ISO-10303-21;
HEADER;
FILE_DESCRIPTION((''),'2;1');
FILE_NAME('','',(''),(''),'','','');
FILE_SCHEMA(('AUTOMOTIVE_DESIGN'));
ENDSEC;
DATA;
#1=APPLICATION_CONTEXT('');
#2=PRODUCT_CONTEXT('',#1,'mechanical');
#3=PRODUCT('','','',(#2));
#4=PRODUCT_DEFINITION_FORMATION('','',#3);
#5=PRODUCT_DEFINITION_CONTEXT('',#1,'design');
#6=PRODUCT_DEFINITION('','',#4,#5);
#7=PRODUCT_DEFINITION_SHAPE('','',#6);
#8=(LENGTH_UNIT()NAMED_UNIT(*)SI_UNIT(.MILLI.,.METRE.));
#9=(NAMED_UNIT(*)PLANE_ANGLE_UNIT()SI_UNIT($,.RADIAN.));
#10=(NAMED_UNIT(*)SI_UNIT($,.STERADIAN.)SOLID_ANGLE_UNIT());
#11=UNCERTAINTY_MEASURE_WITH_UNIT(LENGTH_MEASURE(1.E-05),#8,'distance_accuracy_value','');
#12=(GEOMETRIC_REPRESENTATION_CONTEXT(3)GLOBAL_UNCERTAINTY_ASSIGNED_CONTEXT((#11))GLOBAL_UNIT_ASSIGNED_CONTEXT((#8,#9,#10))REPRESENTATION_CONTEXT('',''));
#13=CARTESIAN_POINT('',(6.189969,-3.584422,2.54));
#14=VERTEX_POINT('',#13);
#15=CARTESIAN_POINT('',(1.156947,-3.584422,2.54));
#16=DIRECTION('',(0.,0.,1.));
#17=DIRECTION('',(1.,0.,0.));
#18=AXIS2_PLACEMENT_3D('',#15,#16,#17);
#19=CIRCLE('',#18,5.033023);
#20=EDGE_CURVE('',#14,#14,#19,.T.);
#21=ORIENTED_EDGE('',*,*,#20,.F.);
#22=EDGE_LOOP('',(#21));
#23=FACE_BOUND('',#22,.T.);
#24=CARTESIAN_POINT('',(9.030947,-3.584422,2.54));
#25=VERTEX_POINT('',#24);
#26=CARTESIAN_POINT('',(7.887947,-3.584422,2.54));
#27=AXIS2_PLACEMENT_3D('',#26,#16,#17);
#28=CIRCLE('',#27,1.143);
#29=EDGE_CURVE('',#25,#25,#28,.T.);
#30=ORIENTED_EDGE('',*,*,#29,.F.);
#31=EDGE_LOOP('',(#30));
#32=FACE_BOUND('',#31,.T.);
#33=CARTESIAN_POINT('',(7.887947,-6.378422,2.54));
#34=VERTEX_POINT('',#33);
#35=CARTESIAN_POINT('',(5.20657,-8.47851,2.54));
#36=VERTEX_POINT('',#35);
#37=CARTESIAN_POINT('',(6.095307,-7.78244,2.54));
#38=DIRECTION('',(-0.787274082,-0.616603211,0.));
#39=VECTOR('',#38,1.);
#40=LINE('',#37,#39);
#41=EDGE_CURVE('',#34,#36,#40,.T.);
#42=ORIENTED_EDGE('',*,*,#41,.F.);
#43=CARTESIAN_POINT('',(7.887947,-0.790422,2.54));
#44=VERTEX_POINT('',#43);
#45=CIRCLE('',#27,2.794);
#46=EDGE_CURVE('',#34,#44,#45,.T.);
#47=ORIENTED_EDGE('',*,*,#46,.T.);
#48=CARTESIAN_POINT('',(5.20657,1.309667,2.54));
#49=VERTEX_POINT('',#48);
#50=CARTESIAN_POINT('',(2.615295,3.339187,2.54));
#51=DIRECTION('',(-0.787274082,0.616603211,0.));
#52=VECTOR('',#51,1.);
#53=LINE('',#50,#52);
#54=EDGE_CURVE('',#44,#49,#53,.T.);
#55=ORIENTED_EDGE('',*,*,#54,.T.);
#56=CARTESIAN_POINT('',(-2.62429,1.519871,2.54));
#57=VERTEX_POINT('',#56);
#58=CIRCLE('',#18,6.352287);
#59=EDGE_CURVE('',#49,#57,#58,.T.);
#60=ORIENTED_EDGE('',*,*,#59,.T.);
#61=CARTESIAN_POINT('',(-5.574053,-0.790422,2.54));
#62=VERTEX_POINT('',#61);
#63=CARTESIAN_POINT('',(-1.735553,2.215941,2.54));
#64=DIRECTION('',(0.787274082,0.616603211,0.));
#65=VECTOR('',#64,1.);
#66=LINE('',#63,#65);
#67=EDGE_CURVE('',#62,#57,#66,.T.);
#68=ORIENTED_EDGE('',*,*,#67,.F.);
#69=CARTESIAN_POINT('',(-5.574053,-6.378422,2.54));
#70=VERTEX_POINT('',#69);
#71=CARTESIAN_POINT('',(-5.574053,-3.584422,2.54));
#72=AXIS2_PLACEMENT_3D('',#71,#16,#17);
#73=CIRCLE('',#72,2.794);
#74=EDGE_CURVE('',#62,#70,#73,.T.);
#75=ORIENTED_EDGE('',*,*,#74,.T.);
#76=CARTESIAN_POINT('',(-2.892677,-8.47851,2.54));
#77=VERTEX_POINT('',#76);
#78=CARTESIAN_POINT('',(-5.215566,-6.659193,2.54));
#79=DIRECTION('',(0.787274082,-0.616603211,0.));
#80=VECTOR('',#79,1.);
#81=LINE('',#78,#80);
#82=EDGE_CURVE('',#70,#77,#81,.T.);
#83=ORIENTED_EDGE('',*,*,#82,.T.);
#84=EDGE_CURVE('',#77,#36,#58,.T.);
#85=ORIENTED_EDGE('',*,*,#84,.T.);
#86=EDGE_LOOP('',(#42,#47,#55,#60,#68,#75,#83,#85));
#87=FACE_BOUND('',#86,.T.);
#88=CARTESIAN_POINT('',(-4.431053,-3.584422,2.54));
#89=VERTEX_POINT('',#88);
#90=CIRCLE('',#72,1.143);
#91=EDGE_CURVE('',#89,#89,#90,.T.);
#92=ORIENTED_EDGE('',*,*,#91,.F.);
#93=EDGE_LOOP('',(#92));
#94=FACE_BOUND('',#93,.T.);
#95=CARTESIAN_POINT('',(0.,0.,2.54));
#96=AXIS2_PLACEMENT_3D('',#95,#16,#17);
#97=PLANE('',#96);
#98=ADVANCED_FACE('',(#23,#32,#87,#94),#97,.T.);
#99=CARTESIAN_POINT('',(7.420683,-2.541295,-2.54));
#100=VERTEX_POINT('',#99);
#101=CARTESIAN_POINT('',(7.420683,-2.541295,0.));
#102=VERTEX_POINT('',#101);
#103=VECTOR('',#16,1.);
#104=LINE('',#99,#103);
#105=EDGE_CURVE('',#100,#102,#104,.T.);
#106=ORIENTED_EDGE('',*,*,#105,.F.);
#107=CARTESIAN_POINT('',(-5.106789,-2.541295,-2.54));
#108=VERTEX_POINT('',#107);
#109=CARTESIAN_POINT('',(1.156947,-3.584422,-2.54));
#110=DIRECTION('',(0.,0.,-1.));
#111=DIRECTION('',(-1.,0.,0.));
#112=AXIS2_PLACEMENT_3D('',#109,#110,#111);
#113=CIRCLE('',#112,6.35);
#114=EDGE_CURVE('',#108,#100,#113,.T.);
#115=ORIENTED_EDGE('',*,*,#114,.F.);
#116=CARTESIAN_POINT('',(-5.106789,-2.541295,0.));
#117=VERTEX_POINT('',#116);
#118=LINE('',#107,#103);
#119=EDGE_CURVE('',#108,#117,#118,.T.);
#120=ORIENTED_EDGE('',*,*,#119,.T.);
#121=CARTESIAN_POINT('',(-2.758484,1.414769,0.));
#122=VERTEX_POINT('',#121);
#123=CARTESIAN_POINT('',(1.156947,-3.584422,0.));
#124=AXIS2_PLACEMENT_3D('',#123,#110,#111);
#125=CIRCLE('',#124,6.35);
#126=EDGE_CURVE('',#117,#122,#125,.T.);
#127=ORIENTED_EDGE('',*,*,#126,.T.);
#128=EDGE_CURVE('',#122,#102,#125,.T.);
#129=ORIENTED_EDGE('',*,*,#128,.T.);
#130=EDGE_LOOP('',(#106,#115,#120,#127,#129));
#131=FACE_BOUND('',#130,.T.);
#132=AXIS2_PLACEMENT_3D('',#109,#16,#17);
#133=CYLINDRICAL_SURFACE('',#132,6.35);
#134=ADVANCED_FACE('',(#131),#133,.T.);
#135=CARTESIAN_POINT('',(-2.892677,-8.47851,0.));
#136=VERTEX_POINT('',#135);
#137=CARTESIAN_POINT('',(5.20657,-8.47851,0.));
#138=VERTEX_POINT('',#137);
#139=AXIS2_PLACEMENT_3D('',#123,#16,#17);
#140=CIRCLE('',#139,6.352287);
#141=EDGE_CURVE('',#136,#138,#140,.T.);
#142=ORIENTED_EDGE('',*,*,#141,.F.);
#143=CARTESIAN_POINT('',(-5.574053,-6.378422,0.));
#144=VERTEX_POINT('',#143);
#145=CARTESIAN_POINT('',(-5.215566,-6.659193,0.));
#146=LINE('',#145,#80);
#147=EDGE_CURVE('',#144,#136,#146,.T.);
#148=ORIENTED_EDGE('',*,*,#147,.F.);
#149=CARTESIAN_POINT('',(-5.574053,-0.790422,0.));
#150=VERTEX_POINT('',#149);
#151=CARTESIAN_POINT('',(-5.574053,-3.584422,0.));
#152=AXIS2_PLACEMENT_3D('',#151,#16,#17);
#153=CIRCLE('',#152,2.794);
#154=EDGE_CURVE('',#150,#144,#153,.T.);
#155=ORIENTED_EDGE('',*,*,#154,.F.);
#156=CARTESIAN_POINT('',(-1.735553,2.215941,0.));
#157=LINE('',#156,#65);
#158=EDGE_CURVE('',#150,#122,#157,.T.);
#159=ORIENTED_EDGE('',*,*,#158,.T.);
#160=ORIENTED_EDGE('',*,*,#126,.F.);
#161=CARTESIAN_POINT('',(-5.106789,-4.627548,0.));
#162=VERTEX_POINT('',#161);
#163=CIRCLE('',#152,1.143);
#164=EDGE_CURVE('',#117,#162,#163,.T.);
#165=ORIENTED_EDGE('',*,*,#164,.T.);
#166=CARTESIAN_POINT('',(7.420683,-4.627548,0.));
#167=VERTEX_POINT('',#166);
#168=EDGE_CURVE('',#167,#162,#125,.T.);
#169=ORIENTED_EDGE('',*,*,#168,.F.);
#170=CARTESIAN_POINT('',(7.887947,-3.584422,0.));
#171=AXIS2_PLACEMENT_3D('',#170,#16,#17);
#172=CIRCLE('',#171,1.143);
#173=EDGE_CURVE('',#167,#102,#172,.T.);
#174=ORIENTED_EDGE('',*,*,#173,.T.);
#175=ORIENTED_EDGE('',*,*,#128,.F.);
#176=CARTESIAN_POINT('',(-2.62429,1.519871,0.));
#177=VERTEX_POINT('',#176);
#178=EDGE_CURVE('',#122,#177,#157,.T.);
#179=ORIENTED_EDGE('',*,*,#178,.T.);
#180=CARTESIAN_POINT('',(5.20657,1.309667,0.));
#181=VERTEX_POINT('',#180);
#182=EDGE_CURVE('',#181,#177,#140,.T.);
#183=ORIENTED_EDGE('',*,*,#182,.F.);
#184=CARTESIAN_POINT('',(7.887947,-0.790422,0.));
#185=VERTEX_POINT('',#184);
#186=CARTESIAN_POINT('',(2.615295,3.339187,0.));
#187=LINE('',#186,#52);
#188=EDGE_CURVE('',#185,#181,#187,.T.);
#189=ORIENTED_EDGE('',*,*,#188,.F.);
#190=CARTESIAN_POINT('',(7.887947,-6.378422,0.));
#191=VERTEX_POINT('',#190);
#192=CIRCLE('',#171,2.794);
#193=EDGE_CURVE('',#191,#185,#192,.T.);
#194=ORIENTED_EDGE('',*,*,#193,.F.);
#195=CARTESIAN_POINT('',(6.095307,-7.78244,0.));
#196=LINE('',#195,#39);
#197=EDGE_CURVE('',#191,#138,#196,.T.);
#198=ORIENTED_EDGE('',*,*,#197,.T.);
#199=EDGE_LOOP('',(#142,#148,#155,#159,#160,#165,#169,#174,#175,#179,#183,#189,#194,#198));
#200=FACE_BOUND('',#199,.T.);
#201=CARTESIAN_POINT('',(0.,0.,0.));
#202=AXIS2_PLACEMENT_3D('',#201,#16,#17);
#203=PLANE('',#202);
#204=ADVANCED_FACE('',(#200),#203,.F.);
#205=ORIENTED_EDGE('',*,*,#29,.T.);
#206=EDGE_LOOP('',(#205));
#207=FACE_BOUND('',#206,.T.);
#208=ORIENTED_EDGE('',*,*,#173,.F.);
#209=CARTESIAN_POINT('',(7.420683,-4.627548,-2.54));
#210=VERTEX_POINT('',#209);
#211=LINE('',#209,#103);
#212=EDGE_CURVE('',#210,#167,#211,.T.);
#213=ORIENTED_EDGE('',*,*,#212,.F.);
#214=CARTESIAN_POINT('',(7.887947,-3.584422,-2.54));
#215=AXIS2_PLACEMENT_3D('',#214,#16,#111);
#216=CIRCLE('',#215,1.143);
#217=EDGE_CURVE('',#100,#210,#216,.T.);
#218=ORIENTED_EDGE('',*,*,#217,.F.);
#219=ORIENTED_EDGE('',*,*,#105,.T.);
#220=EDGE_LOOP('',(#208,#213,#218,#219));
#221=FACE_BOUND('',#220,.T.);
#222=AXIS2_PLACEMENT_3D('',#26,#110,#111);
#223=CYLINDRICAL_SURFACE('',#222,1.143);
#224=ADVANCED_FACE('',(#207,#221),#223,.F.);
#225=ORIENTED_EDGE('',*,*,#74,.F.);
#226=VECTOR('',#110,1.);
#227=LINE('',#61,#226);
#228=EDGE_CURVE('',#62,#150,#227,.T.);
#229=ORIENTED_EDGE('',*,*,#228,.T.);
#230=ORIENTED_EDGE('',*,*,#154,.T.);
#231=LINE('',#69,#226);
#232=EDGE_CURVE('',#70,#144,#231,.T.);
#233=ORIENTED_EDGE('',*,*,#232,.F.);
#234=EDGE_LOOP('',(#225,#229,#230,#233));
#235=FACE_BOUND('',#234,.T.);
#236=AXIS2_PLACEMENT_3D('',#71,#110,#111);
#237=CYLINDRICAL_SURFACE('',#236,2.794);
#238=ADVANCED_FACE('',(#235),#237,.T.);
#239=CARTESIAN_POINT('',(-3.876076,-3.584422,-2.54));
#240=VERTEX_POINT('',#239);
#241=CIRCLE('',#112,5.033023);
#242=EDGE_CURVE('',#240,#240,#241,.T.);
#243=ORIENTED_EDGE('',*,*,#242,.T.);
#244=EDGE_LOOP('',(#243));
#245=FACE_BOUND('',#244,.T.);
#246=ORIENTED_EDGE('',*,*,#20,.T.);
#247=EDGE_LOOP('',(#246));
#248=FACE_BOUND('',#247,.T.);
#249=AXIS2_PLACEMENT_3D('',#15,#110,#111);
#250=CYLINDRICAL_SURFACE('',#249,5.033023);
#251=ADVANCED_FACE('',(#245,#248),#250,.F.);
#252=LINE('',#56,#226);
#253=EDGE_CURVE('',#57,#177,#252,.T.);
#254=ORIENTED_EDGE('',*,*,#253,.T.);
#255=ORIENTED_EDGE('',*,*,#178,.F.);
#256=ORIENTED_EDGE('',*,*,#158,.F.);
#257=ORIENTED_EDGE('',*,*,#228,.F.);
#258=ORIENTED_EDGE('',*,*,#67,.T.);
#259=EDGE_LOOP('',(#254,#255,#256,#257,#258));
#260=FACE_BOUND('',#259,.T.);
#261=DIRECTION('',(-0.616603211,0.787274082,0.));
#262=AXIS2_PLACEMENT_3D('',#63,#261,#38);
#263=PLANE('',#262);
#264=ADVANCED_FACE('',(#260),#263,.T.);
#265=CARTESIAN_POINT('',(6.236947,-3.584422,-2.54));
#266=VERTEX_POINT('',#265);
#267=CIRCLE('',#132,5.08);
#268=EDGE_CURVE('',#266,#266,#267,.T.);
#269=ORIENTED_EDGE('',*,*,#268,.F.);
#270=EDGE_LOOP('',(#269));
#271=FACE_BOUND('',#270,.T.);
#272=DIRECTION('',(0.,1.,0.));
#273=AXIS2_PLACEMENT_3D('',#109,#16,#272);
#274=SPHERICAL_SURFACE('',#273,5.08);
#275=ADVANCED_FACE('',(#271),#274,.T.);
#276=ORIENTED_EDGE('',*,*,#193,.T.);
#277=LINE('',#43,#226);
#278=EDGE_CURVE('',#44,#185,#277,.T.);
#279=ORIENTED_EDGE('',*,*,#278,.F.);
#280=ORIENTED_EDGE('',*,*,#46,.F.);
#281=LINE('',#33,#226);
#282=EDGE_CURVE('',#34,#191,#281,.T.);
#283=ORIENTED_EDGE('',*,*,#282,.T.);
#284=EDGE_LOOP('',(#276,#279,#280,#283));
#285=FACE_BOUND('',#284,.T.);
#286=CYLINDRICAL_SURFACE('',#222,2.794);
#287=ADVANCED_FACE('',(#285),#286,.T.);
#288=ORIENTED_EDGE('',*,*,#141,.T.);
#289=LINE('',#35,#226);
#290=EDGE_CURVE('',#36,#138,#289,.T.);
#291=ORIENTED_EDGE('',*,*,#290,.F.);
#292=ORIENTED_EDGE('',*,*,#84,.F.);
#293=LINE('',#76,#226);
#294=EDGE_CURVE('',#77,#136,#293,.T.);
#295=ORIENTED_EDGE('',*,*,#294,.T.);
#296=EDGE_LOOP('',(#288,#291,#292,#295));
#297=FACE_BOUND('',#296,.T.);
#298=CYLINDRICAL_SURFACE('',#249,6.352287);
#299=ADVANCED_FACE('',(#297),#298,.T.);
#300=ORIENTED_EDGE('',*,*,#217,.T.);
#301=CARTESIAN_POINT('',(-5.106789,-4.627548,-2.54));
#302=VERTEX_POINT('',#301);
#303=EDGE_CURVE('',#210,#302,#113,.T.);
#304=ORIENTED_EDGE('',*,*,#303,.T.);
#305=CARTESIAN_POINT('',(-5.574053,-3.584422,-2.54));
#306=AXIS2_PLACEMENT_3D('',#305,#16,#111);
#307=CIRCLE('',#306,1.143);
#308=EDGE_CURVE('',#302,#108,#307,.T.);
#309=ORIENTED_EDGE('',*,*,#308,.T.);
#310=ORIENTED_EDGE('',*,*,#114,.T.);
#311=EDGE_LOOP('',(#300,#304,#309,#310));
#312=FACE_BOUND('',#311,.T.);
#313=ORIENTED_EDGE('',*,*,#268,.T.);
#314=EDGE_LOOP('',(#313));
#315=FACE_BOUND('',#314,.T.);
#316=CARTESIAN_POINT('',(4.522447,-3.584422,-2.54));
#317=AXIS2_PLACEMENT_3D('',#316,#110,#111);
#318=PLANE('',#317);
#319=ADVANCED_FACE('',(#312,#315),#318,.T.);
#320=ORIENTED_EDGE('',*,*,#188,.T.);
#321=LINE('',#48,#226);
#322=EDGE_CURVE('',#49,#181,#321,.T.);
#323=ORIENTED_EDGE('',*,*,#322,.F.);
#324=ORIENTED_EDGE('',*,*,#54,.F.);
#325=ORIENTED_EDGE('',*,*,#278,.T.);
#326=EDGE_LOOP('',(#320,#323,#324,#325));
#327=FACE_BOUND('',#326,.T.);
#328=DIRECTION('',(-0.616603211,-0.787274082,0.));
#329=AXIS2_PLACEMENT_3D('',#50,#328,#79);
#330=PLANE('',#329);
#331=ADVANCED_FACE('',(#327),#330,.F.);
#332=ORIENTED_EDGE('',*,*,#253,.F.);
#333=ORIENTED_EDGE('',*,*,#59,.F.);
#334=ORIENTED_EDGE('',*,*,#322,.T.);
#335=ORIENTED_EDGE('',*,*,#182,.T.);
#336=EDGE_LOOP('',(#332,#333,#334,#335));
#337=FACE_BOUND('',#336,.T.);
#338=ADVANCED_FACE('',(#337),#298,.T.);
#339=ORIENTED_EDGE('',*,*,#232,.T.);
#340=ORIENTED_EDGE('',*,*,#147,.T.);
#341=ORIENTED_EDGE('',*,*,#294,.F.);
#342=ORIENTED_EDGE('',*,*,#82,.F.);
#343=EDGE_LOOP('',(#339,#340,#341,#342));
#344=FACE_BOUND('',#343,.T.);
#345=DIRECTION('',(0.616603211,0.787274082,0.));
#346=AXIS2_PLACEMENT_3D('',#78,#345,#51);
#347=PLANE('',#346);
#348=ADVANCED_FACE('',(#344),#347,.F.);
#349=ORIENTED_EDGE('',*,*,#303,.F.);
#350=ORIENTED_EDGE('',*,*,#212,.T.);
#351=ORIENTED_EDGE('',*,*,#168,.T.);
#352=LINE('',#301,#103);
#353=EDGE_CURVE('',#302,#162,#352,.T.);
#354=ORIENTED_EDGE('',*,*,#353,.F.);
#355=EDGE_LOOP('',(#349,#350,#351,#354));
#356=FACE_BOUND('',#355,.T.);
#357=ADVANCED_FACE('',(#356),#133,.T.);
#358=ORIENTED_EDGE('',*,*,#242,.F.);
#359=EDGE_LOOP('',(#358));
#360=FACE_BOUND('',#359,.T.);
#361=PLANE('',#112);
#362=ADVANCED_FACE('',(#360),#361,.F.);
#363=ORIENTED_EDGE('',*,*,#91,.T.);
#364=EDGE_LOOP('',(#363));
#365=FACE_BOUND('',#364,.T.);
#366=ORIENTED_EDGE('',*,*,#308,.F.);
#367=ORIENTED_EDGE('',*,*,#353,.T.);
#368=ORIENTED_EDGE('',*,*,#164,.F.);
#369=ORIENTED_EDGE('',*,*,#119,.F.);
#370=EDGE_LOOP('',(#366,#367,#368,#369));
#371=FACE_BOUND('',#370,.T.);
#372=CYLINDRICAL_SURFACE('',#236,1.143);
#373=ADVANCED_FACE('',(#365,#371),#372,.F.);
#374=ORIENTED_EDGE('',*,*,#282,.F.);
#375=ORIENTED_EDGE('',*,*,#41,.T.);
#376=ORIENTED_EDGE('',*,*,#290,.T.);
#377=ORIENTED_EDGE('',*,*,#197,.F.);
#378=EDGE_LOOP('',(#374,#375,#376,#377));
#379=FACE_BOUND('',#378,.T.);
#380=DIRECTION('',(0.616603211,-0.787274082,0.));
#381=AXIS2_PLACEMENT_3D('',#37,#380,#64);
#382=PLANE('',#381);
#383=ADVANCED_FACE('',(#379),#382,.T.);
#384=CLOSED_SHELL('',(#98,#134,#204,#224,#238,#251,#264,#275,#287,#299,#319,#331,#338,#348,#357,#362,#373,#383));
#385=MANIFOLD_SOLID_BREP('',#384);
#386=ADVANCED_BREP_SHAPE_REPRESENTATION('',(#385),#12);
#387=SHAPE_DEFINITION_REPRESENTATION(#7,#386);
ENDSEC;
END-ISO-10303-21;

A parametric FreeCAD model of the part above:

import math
import FreeCAD as App
import Part
import Sketcher
from FreeCAD import Vector
Q = App.Units.Quantity

doc = App.newDocument("Part")
params = doc.addObject("Spreadsheet::Sheet", "Params")
for row, (alias, value) in enumerate([
    ("sketch1_diameter", "0.09 in"),
    ("sketch1_radius", "0.11 in"),
    ("pad1_length", "0.1 in"),
    ("sketch2_radius", "0.25 in"),
    ("sketch2_radius2", "0.045 in"),
    ("pad2_length", "0.1 in"),
    ("sketch3_radius", "0.2 in"),
    ("revolution_angle", "360 deg"),
], start=1):
    params.set(f"A{row}", alias)
    params.set(f"B{row}", "=" + value)
    params.setAlias(f"B{row}", alias)

body = doc.addObject("PartDesign::Body", "Body")

# Sketch on XY plane
sketch1 = body.newObject("Sketcher::SketchObject", "Sketch")
sketch1.AttachmentSupport = (doc.getObject("XY_Plane"), [""])
sketch1.MapMode = "FlatFace"
sketch1.addGeometry([
    Part.LineSegment(Vector(-2.76, 1.41, 0), Vector(-5.57, -0.79, 0)),  # 0
    Part.ArcOfCircle(Part.Circle(Vector(-5.57, -3.58, 0), Vector(0, 0, 1), 2.79), math.radians(90), math.radians(270)),  # 1
    Part.LineSegment(Vector(-5.57, -6.38, 0), Vector(-2.89, -8.48, 0)),  # 2
    Part.ArcOfCircle(Part.Circle(Vector(1.16, -3.58, 0), Vector(0, 0, 1), 6.35), math.radians(-130), math.radians(-50)),  # 3
    Part.LineSegment(Vector(5.21, -8.48, 0), Vector(7.89, -6.38, 0)),  # 4
    Part.ArcOfCircle(Part.Circle(Vector(7.89, -3.58, 0), Vector(0, 0, 1), 2.79), math.radians(-90), math.radians(90)),  # 5
    Part.LineSegment(Vector(7.89, -0.79, 0), Vector(5.21, 1.31, 0)),  # 6
    Part.ArcOfCircle(Part.Circle(Vector(1.16, -3.58, 0), Vector(0, 0, 1), 6.35), math.radians(50), math.radians(127)),  # 7
    Part.LineSegment(Vector(-2.62, 1.52, 0), Vector(-2.76, 1.41, 0)),  # 8
    Part.Circle(Vector(-5.57, -3.58, 0), Vector(0, 0, 1), 1.14),  # 9
    Part.Circle(Vector(1.16, -3.58, 0), Vector(0, 0, 1), 5.03),  # 10
    Part.Circle(Vector(7.89, -3.58, 0), Vector(0, 0, 1), 1.14),  # 11
], False)
sketch1.addConstraint([
    Sketcher.Constraint("Coincident", 0, 2, 1, 1),
    Sketcher.Constraint("Coincident", 1, 2, 2, 1),
    Sketcher.Constraint("Coincident", 2, 2, 3, 1),
    Sketcher.Constraint("Coincident", 3, 2, 4, 1),
    Sketcher.Constraint("Coincident", 4, 2, 5, 1),
    Sketcher.Constraint("Coincident", 5, 2, 6, 1),
    Sketcher.Constraint("Coincident", 6, 2, 7, 1),
    Sketcher.Constraint("Coincident", 7, 2, 8, 1),
    Sketcher.Constraint("Coincident", 8, 2, 0, 1),
    Sketcher.Constraint("Coincident", 7, 3, 3, 3),
    Sketcher.Constraint("Coincident", 9, 3, 1, 3),
    Sketcher.Constraint("Coincident", 10, 3, 3, 3),
    Sketcher.Constraint("Coincident", 11, 3, 5, 3),
    Sketcher.Constraint("Equal", 1, 5),
    Sketcher.Constraint("Equal", 9, 11),
    Sketcher.Constraint("Parallel", 0, 4),
    Sketcher.Constraint("Parallel", 2, 6),
    Sketcher.Constraint("Parallel", 4, 8),
    Sketcher.Constraint("Horizontal", 1, 3, 3, 3),
    Sketcher.Constraint("Horizontal", 3, 3, 5, 3),
    Sketcher.Constraint("Horizontal", 2, 2, 3, 2),
    Sketcher.Constraint("Vertical", 9, 3, 0, 2),
    Sketcher.Constraint("Vertical", 0, 2, 1, 2),
    Sketcher.Constraint("Vertical", 11, 3, 4, 2),
    Sketcher.Constraint("Vertical", 4, 2, 5, 2),
    Sketcher.Constraint("Vertical", 3, 2, 6, 2),
    Sketcher.Constraint("Equal", 2, 4),
    Sketcher.Constraint("Diameter", 9, Q("0.09 in")),
    Sketcher.Constraint("Radius", 1, Q("0.11 in")),
    Sketcher.Constraint("DistanceX", 1, 3, 5, 3, Q("0.53 in")),
    Sketcher.Constraint("Radius", 7, Q("6.352288 mm")),
    Sketcher.Constraint("Diameter", 10, Q("10.066046 mm")),
    Sketcher.Constraint("Distance", 2, Q("3.405899 mm")),
    Sketcher.Constraint("DistanceY", 1, 3, -1, 1, Q("3.584422 mm")),
    Sketcher.Constraint("DistanceX", -1, 1, 3, 2, Q("5.20657 mm")),
    Sketcher.Constraint("DistanceY", -1, 1, 8, 2, Q("1.414769 mm")),
])
sketch1.setExpression("Constraints[27]", "Params.sketch1_diameter")
sketch1.setExpression("Constraints[28]", "Params.sketch1_radius")
pad1 = body.newObject("PartDesign::Pad", "Pad")
pad1.Profile = sketch1
pad1.setExpression("Length", "Params.pad1_length")

# Sketch on XY plane
sketch2 = body.newObject("Sketcher::SketchObject", "Sketch001")
sketch2.AttachmentSupport = (doc.getObject("XY_Plane"), [""])
sketch2.MapMode = "FlatFace"
sketch2.addGeometry([
    Part.ArcOfCircle(Part.Circle(Vector(1.2, -3.6, 0), Vector(0, 0, 1), 6.4), math.radians(9), math.radians(171)),  # 0
    Part.ArcOfCircle(Part.Circle(Vector(7.9, -3.6, 0), Vector(0, 0, 1), 1.1), math.radians(114), math.radians(246)),  # 1
    Part.ArcOfCircle(Part.Circle(Vector(1.2, -3.6, 0), Vector(0, 0, 1), 6.4), math.radians(-171), math.radians(-9)),  # 2
    Part.ArcOfCircle(Part.Circle(Vector(-5.6, -3.6, 0), Vector(0, 0, 1), 1.1), math.radians(-66), math.radians(66)),  # 3
    Part.Circle(Vector(1.2, -3.6, 0), Vector(0, 0, 1), 5),  # 4
], False)
sketch2.addConstraint([
    Sketcher.Constraint("Coincident", 0, 1, 1, 1),
    Sketcher.Constraint("Coincident", 1, 2, 2, 2),
    Sketcher.Constraint("Coincident", 2, 1, 3, 1),
    Sketcher.Constraint("Coincident", 3, 2, 0, 2),
    Sketcher.Constraint("Coincident", 2, 3, 0, 3),
    Sketcher.Constraint("Coincident", 4, 3, 0, 3),
    Sketcher.Constraint("Equal", 0, 2),
    Sketcher.Constraint("Equal", 1, 3),
    Sketcher.Constraint("Horizontal", 0, 3, 1, 3),
    Sketcher.Constraint("Horizontal", 2, 3, 3, 3),
    Sketcher.Constraint("Horizontal", 1, 2, 2, 1),
    Sketcher.Constraint("Radius", 0, Q("0.25 in")),
    Sketcher.Constraint("Radius", 1, Q("0.045 in")),
    Sketcher.Constraint("DistanceX", 3, 3, 1, 3, Q("0.53 in")),
    Sketcher.Constraint("Diameter", 4, Q("10.066046 mm")),
    Sketcher.Constraint("DistanceY", 1, 3, -1, 1, Q("3.584421 mm")),
    Sketcher.Constraint("DistanceX", 2, 1, -1, 1, Q("5.106789 mm")),
])
sketch2.setExpression("Constraints[11]", "Params.sketch2_radius")
sketch2.setExpression("Constraints[12]", "Params.sketch2_radius2")
pad2 = body.newObject("PartDesign::Pad", "Pad001")
pad2.Profile = sketch2
pad2.setExpression("Length", "Params.pad2_length")
pad2.Reversed = True

# Sketch on YZ plane
sketch3 = body.newObject("Sketcher::SketchObject", "Sketch002")
sketch3.AttachmentSupport = (doc.getObject("YZ_Plane"), [""])
sketch3.MapMode = "FlatFace"
sketch3.AttachmentOffset = App.Placement(Vector(0, 0, 1.156947), App.Rotation())
sketch3.addGeometry([
    Part.LineSegment(Vector(-4, -3, 0), Vector(-4, -8, 0)),
    Part.ArcOfCircle(Part.Circle(Vector(-4, -3, 0), Vector(0, 0, 1), 5), math.radians(-90), math.radians(0)),
    Part.LineSegment(Vector(1, -3, 0), Vector(-4, -3, 0)),
], False)
sketch3.addGeometry(Part.LineSegment(Vector(-4, -3, 0), Vector(-4, -8, 0)), True)  # axis
sketch3.addConstraint([
    Sketcher.Constraint("Coincident", 0, 2, 1, 1),
    Sketcher.Constraint("Coincident", 1, 2, 2, 1),
    Sketcher.Constraint("Coincident", 2, 2, 0, 1),
    Sketcher.Constraint("Vertical", 0),
    Sketcher.Constraint("Horizontal", 2),
    Sketcher.Constraint("Vertical", 3),
    Sketcher.Constraint("Coincident", 2, 2, 1, 3),
    Sketcher.Constraint("Coincident", 3, 1, 1, 3),
    Sketcher.Constraint("Equal", 0, 3),
    Sketcher.Constraint("Radius", 1, Q("0.2 in")),
    Sketcher.Constraint("DistanceY", 1, 3, -1, 1, Q("0.1 in")),
    Sketcher.Constraint("DistanceX", 1, 3, -1, 1, Q("3.584422 mm")),
])
sketch3.setExpression("Constraints[9]", "Params.sketch3_radius")
revolution = body.newObject("PartDesign::Revolution", "Revolution")
revolution.Profile = sketch3
revolution.ReferenceAxis = (sketch3, ["Axis0"])
revolution.setExpression("Angle", "Params.revolution_angle")

doc.recompute()
